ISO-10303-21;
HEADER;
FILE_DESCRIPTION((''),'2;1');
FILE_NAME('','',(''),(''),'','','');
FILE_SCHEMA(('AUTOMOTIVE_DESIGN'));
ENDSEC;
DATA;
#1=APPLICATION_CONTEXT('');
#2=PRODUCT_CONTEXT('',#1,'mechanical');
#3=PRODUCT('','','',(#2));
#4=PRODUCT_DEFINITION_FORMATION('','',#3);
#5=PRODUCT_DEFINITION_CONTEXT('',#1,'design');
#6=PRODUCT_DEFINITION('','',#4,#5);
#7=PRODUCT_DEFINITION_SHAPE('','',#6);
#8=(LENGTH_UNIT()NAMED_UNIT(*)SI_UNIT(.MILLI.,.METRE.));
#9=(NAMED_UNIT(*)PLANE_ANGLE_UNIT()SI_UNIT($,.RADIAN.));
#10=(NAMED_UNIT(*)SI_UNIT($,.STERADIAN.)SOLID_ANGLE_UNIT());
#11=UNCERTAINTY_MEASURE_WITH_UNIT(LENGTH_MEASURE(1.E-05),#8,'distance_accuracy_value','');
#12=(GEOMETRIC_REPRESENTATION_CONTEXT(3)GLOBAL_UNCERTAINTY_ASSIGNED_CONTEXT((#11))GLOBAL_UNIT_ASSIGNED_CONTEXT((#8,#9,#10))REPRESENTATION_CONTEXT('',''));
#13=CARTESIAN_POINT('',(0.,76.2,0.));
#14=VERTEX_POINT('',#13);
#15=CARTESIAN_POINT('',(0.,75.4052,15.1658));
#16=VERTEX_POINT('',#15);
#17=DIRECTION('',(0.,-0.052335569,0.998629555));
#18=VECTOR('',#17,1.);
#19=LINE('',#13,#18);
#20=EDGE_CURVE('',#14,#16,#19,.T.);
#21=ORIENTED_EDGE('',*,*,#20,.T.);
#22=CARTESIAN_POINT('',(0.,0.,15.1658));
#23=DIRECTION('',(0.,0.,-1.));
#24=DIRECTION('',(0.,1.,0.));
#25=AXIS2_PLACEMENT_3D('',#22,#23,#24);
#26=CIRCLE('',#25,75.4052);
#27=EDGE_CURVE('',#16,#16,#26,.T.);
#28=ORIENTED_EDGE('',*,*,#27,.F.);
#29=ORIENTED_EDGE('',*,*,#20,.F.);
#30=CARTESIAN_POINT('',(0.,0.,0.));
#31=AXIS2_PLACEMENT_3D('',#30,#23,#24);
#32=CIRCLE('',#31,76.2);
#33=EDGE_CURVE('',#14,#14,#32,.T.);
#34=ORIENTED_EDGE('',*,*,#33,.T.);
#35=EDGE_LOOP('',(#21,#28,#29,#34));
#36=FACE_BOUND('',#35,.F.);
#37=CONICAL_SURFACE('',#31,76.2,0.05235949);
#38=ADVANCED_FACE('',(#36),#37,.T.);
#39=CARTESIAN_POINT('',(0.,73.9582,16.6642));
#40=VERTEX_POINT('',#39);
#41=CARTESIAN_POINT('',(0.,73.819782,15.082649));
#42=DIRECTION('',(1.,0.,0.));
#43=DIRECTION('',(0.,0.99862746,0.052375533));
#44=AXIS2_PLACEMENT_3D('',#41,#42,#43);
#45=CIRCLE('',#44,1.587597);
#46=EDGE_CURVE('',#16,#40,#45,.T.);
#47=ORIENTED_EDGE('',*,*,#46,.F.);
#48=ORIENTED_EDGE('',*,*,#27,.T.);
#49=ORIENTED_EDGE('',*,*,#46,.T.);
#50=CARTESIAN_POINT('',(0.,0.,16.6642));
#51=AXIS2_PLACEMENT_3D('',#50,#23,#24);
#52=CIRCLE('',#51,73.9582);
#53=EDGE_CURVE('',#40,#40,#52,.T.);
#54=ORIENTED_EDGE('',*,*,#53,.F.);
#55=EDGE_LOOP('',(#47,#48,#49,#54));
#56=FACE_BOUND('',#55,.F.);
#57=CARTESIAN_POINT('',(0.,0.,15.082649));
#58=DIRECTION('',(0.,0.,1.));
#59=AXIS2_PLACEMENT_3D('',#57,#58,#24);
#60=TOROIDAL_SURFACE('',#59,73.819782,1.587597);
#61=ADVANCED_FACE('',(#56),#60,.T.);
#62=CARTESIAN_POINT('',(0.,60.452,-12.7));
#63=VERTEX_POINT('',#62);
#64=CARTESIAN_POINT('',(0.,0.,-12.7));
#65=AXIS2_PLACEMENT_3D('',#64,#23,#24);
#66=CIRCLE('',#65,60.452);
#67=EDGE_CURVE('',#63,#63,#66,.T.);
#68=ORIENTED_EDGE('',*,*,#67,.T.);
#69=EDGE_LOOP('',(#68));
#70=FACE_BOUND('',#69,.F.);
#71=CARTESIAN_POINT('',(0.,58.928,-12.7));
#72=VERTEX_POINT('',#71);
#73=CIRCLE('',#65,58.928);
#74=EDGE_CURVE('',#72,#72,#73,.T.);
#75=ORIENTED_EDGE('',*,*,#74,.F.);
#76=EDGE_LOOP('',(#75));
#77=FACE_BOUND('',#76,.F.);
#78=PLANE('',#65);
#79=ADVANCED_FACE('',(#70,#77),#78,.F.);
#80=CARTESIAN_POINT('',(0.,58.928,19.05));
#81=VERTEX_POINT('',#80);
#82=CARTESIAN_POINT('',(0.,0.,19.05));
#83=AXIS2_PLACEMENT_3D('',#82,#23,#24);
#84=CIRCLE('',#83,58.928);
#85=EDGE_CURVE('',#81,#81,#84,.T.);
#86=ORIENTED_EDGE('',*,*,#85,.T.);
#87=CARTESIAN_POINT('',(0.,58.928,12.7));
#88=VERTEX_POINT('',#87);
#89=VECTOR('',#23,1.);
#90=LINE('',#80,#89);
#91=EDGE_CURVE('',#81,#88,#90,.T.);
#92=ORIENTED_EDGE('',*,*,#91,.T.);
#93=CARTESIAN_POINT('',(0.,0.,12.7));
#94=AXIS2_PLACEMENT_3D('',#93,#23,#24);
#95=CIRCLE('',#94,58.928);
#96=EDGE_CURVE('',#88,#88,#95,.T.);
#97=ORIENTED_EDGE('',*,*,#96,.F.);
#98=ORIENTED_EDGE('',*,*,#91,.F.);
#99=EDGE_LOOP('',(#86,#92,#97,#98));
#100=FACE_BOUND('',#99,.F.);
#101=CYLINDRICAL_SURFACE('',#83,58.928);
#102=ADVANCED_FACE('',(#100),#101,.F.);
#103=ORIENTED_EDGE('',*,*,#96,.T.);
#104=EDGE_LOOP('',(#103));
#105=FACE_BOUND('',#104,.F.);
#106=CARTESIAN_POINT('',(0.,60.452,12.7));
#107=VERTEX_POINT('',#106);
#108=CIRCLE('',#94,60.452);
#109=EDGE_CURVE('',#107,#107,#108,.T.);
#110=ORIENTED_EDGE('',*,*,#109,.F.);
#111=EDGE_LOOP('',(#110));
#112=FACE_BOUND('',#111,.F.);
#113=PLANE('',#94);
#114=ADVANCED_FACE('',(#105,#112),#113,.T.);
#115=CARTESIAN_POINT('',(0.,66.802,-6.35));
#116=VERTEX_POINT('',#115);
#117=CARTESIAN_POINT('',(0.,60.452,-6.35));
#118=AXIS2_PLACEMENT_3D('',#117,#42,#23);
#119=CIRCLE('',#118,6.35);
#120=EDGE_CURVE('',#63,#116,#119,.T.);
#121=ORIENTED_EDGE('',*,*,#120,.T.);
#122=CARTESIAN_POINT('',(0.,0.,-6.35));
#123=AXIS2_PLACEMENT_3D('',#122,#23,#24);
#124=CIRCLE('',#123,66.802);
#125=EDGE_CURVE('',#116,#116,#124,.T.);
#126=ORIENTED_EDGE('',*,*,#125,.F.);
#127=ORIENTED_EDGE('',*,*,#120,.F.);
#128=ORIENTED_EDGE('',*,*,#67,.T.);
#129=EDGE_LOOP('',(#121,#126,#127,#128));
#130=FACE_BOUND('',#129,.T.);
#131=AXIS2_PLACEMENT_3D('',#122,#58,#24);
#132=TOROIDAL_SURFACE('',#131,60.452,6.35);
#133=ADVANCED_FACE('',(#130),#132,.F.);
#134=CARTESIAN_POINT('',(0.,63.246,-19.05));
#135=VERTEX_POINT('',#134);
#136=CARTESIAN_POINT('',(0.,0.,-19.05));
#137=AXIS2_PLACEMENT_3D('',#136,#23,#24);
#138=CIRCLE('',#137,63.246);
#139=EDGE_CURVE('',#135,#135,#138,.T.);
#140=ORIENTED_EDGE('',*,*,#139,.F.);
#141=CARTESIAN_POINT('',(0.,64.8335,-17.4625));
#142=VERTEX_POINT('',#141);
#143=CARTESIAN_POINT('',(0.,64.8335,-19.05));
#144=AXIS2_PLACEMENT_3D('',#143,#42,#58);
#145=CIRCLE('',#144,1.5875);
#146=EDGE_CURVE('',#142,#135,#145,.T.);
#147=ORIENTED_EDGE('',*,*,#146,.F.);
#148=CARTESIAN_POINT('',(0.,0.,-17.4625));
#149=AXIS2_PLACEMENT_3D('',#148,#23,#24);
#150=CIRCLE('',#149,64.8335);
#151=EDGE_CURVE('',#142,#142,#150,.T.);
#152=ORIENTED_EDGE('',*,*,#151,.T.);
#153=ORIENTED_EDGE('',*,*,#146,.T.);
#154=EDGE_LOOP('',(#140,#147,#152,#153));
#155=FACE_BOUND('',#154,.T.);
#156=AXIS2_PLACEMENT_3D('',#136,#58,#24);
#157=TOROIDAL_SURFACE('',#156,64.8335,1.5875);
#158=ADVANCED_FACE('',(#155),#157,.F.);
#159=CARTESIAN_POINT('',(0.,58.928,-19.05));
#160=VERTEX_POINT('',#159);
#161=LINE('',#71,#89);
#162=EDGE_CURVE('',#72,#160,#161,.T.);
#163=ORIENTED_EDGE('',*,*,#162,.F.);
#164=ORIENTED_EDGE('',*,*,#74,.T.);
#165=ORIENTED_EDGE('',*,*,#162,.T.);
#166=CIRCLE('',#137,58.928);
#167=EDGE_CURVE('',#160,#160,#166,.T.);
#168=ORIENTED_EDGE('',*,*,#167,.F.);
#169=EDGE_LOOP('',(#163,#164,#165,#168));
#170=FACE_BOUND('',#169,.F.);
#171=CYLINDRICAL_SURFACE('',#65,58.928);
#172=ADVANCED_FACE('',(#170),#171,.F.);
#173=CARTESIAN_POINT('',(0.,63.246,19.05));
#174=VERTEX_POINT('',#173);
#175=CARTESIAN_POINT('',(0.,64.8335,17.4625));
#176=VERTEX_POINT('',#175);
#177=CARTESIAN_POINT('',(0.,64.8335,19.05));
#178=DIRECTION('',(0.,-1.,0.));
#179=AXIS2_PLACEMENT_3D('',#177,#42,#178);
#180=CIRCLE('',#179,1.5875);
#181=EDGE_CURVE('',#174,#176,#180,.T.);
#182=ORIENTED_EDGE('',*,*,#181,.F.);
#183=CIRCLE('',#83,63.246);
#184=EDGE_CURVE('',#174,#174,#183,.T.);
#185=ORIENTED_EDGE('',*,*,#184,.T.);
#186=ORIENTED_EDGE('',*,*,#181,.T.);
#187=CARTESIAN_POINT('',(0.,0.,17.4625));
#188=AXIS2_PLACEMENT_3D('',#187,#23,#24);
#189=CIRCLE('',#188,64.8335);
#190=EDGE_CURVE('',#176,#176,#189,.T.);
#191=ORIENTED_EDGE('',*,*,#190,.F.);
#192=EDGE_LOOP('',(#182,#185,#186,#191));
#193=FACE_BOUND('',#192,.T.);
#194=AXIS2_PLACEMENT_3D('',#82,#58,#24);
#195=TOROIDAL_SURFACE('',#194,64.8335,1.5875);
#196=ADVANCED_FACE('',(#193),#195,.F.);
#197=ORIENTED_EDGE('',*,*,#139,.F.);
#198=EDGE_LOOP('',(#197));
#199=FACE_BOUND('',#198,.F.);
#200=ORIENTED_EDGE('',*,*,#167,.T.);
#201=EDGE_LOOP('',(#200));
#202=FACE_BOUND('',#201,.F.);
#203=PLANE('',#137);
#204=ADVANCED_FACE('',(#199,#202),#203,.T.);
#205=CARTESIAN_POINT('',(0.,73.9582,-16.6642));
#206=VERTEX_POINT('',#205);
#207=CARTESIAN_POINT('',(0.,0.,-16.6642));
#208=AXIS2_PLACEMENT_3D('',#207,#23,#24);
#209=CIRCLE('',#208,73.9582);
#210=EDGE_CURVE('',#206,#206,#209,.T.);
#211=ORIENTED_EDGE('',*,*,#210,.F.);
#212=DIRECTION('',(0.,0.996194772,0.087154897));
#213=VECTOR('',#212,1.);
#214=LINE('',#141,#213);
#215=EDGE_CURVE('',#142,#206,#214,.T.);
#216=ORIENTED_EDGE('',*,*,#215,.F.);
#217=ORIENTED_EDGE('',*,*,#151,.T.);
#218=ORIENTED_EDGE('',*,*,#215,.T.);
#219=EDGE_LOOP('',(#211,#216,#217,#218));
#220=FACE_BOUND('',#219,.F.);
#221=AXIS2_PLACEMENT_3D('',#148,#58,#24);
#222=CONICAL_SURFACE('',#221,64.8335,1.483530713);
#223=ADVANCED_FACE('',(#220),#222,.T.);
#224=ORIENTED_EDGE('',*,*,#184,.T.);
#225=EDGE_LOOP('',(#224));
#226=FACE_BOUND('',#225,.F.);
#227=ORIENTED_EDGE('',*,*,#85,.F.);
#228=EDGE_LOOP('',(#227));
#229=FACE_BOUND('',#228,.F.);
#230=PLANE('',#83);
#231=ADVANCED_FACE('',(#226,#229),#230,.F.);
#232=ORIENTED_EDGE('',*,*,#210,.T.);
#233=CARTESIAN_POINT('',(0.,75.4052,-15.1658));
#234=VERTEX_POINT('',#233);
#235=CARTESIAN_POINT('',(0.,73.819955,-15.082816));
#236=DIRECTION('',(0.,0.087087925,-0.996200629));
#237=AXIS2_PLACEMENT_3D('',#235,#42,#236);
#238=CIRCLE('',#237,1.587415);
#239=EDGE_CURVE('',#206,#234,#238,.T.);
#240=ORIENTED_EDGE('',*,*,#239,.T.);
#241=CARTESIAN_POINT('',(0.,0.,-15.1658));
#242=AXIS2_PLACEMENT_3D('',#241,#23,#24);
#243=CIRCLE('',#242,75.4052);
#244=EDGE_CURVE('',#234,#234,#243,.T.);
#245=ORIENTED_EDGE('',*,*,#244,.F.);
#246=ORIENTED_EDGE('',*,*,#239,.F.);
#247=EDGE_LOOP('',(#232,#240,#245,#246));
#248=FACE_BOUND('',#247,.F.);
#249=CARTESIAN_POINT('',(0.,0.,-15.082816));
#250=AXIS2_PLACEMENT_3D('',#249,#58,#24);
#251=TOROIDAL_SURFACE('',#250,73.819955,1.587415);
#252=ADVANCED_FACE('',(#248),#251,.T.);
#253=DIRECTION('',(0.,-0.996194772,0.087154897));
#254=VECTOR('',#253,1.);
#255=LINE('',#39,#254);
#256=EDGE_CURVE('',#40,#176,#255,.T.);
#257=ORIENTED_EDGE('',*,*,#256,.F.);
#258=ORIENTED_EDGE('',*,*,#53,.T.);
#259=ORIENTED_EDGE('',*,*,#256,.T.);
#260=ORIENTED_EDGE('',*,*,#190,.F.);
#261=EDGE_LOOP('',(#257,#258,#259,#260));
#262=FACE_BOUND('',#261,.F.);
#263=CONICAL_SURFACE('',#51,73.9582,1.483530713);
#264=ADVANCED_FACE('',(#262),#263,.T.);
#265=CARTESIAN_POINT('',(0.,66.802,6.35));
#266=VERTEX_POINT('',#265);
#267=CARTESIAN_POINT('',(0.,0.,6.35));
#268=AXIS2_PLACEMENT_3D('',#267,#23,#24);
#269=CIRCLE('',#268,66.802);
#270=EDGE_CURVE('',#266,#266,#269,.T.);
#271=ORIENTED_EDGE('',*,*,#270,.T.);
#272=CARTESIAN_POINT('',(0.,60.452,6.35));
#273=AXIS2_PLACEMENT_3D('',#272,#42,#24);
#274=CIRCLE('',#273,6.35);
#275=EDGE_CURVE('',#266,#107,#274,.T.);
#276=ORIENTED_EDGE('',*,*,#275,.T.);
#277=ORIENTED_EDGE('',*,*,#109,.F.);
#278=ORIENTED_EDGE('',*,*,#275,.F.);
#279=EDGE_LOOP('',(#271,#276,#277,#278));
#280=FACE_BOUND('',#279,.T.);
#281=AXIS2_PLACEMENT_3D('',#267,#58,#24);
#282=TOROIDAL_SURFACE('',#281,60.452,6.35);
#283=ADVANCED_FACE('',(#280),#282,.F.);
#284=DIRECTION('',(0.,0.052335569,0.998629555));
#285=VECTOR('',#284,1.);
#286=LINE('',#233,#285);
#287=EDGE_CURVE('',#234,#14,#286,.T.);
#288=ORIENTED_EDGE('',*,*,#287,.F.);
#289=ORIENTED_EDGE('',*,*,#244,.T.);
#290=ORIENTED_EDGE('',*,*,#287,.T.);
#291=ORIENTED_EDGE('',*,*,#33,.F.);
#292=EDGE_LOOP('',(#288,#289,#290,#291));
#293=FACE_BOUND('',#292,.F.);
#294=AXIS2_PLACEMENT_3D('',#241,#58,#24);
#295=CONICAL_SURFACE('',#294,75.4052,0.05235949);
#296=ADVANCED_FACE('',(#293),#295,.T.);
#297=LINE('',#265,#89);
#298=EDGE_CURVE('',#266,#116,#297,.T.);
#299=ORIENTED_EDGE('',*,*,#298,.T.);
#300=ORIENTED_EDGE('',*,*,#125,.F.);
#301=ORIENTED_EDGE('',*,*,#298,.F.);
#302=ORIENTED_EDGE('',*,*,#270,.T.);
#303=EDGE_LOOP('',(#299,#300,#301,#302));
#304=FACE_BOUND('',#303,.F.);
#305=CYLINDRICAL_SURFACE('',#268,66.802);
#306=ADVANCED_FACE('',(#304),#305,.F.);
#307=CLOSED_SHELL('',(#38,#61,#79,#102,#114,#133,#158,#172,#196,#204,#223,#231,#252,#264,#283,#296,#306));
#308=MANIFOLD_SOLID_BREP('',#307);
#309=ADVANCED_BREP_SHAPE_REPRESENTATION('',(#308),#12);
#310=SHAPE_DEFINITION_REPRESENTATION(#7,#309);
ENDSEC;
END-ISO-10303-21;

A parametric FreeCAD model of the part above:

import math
import FreeCAD as App
import Part
import Sketcher

V = App.Vector
Q = App.Units.Quantity

doc = App.newDocument("Part")
body = doc.addObject("PartDesign::Body", "Body")

sketch1 = body.newObject("Sketcher::SketchObject", "Sketch")
sketch1.AttachmentSupport = (doc.getObject("YZ_Plane"), [""])
sketch1.MapMode = "FlatFace"
sketch1.addGeometry(Part.LineSegment(V(63.246, 19.05, 0), V(58.928, 19.05, 0)), False)
sketch1.addGeometry(Part.LineSegment(V(58.928, 19.05, 0), V(58.928, 12.7, 0)), False)
sketch1.addGeometry(Part.LineSegment(V(58.928, 12.7, 0), V(60.452, 12.7, 0)), False)
sketch1.addGeometry(Part.ArcOfCircle(Part.Circle(V(60.452, 6.35, 0), V(0, 0, 1), 6.35), math.radians(0), math.radians(90)), False)
sketch1.addGeometry(Part.LineSegment(V(66.802, 6.35, 0), V(66.802, -6.35, 0)), False)
sketch1.addGeometry(Part.ArcOfCircle(Part.Circle(V(60.452, -6.35, 0), V(0, 0, 1), 6.35), math.radians(-90), math.radians(0)), False)
sketch1.addGeometry(Part.LineSegment(V(60.452, -12.7, 0), V(58.928, -12.7, 0)), False)
sketch1.addGeometry(Part.LineSegment(V(58.928, -12.7, 0), V(58.928, -19.05, 0)), False)
sketch1.addGeometry(Part.LineSegment(V(58.928, -19.05, 0), V(63.246, -19.05, 0)), False)
sketch1.addGeometry(Part.ArcOfCircle(Part.Circle(V(64.8335, -19.05, 0), V(0, 0, 1), 1.5875), math.radians(90), math.radians(180)), False)
sketch1.addGeometry(Part.LineSegment(V(64.8335, -17.4625, 0), V(73.9582, -16.6642, 0)), False)
sketch1.addGeometry(Part.ArcOfCircle(Part.Circle(V(73.8199, -15.0827, 0), V(0, 0, 1), 1.587536), math.radians(-85.002277), math.radians(-3.000647)), False)
sketch1.addGeometry(Part.LineSegment(V(75.4052, -15.1658, 0), V(76.2, 0, 0)), False)
sketch1.addGeometry(Part.LineSegment(V(76.2, 0, 0), V(75.4052, 15.1658, 0)), False)
sketch1.addGeometry(Part.ArcOfCircle(Part.Circle(V(73.8199, 15.0827, 0), V(0, 0, 1), 1.587477), math.radians(3.000647), math.radians(85.002277)), False)
sketch1.addGeometry(Part.LineSegment(V(73.9582, 16.6642, 0), V(64.8335, 17.4625, 0)), False)
sketch1.addGeometry(Part.ArcOfCircle(Part.Circle(V(64.8335, 19.05, 0), V(0, 0, 1), 1.5875), math.radians(180), math.radians(270)), False)
sketch1.addConstraint(Sketcher.Constraint("Coincident", 0, 2, 1, 1))
sketch1.addConstraint(Sketcher.Constraint("Coincident", 1, 2, 2, 1))
sketch1.addConstraint(Sketcher.Constraint("Tangent", 2, 2, 3, 2))
sketch1.addConstraint(Sketcher.Constraint("Tangent", 3, 1, 4, 1))
sketch1.addConstraint(Sketcher.Constraint("Tangent", 4, 2, 5, 2))
sketch1.addConstraint(Sketcher.Constraint("Tangent", 5, 1, 6, 1))
sketch1.addConstraint(Sketcher.Constraint("Coincident", 6, 2, 7, 1))
sketch1.addConstraint(Sketcher.Constraint("Coincident", 7, 2, 8, 1))
sketch1.addConstraint(Sketcher.Constraint("Coincident", 8, 2, 9, 2))
sketch1.addConstraint(Sketcher.Constraint("Coincident", 9, 1, 10, 1))
sketch1.addConstraint(Sketcher.Constraint("Tangent", 10, 2, 11, 1))
sketch1.addConstraint(Sketcher.Constraint("Tangent", 11, 2, 12, 1))
sketch1.addConstraint(Sketcher.Constraint("Coincident", 12, 2, 13, 1))
sketch1.addConstraint(Sketcher.Constraint("Tangent", 13, 2, 14, 1))
sketch1.addConstraint(Sketcher.Constraint("Tangent", 14, 2, 15, 1))
sketch1.addConstraint(Sketcher.Constraint("Coincident", 15, 2, 16, 2))
sketch1.addConstraint(Sketcher.Constraint("Coincident", 16, 1, 0, 1))
sketch1.addConstraint(Sketcher.Constraint("Horizontal", 0))
sketch1.addConstraint(Sketcher.Constraint("Vertical", 1))
sketch1.addConstraint(Sketcher.Constraint("Horizontal", 2))
sketch1.addConstraint(Sketcher.Constraint("Vertical", 4))
sketch1.addConstraint(Sketcher.Constraint("Horizontal", 6))
sketch1.addConstraint(Sketcher.Constraint("Vertical", 7))
sketch1.addConstraint(Sketcher.Constraint("Horizontal", 8))
sketch1.addConstraint(Sketcher.Constraint("Equal", 3, 5))
sketch1.addConstraint(Sketcher.Constraint("Equal", 9, 11))
sketch1.addConstraint(Sketcher.Constraint("Equal", 11, 14))
sketch1.addConstraint(Sketcher.Constraint("Equal", 14, 16))
sketch1.addConstraint(Sketcher.Constraint("Symmetric", 11, 3, 14, 3, -1))
sketch1.addConstraint(Sketcher.Constraint("Symmetric", 9, 3, 16, 3, -1))
sketch1.addConstraint(Sketcher.Constraint("Symmetric", 1, 2, 6, 2, -1))
sketch1.addConstraint(Sketcher.Constraint("PointOnObject", 12, 2, -1))
sketch1.addConstraint(Sketcher.Constraint("Horizontal", 16, 3, 0, 2))
sketch1.addConstraint(Sketcher.Constraint("Horizontal", 9, 3, 7, 2))
sketch1.addConstraint(Sketcher.Constraint("Vertical", 16, 3, 9, 1))
sketch1.addConstraint(Sketcher.Constraint("Vertical", 10, 2, 14, 2))
sketch1.addConstraint(Sketcher.Constraint("Radius", 3, Q("0.25 in")))
sketch1.addConstraint(Sketcher.Constraint("DistanceY", 4, 2, 4, 1, Q("0.5 in")))
sketch1.addConstraint(Sketcher.Constraint("DistanceX", -1, 1, 12, 2, Q("3 in")))
sketch1.addConstraint(Sketcher.Constraint("Angle", 10, Q("5 deg")))
sketch1.addConstraint(Sketcher.Constraint("Angle", 12, Q("87 deg")))
sketch1.addConstraint(Sketcher.Constraint("Radius", 9, Q("0.0625 in")))
sketch1.addConstraint(Sketcher.Constraint("DistanceY", 9, 3, 3, 3, Q("1 in")))
sketch1.addConstraint(Sketcher.Constraint("DistanceX", 0, 2, 0, 1, Q("0.17 in")))
sketch1.addConstraint(Sketcher.Constraint("DistanceX", 2, 1, 2, 2, Q("0.06 in")))
sketch1.addConstraint(Sketcher.Constraint("DistanceX", -1, 1, 3, 3, Q("2.38 in")))
revolution = body.newObject("PartDesign::Revolution", "Revolution")
revolution.Profile = sketch1
revolution.ReferenceAxis = (sketch1, ["V_Axis"])
revolution.Angle = 360

doc.recompute()
